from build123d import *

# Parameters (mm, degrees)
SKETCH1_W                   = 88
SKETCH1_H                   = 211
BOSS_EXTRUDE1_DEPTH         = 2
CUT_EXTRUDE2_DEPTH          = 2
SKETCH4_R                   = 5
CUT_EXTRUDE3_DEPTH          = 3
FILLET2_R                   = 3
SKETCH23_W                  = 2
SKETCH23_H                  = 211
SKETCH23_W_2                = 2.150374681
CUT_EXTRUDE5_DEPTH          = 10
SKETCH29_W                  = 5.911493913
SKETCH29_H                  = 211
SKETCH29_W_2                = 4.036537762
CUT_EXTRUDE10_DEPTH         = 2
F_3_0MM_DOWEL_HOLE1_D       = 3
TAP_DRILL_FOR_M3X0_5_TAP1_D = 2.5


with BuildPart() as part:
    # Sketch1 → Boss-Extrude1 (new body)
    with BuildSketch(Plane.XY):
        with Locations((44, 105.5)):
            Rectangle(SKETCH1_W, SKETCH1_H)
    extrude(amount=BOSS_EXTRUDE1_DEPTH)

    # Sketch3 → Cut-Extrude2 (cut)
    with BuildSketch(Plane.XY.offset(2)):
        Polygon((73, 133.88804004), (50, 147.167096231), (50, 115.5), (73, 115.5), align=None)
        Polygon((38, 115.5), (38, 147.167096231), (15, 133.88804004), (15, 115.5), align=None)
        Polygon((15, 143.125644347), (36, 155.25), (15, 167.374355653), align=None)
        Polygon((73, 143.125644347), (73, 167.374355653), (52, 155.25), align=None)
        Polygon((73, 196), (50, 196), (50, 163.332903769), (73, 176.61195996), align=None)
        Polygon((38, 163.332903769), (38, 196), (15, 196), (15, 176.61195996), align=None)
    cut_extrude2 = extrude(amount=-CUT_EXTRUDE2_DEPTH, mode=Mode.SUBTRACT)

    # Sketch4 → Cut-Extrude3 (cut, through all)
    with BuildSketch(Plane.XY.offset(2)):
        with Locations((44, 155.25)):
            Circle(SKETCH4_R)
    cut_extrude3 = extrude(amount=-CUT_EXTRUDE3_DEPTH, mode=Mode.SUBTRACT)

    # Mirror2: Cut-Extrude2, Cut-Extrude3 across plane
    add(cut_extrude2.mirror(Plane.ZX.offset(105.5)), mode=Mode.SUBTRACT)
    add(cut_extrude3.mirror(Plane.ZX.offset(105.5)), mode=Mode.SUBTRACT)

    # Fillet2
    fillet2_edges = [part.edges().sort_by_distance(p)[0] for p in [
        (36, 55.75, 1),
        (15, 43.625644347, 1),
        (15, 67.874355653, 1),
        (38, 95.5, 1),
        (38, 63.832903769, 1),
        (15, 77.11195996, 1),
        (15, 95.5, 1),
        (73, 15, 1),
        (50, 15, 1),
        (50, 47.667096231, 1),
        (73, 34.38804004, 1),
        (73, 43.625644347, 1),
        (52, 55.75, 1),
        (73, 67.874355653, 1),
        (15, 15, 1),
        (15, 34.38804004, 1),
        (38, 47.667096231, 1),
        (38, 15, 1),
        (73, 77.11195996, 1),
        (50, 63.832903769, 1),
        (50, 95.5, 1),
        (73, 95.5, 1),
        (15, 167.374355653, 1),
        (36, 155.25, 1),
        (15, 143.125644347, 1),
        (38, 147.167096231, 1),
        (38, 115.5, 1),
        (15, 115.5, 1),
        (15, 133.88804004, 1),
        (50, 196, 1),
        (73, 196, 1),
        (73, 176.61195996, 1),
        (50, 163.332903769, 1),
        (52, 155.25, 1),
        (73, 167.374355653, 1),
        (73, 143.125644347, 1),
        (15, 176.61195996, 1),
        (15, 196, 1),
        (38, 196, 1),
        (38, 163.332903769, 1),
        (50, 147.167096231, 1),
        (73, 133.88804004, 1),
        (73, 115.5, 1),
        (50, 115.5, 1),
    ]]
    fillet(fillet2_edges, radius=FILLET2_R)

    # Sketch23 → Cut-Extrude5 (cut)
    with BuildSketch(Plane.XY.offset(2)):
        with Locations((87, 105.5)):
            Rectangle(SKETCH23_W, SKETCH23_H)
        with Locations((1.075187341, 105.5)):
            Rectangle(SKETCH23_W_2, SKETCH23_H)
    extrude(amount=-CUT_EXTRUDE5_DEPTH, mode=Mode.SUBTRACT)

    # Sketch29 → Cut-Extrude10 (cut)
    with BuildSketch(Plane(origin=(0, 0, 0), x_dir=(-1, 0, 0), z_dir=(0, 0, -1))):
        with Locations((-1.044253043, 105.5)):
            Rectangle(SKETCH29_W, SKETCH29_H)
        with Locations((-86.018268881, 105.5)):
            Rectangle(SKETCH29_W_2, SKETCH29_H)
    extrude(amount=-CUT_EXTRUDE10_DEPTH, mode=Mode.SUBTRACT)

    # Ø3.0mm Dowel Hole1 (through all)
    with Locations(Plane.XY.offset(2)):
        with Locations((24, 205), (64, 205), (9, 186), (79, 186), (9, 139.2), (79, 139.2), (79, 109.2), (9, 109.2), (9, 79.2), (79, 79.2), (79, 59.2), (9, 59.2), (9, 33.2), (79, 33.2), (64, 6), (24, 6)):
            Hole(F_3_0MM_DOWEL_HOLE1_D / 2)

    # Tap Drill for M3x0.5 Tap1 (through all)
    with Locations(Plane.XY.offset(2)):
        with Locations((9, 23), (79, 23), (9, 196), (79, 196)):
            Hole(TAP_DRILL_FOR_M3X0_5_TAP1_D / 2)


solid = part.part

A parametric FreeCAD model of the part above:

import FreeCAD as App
import Part
import Sketcher
from FreeCAD import Vector
Q = App.Units.Quantity


def edges_at(feature, points):
    """Names of the edges that pass closest to the given points."""
    edges = feature.Shape.Edges
    near = lambda p: min(range(len(edges)), key=lambda i: edges[i].distToShape(Part.Vertex(*p))[0])
    return sorted({f"Edge{near(p) + 1}" for p in points})


def add_polygon(sketch, points):
    """Adds a closed chain of lines whose ends are joined by coincident constraints."""
    first, n = sketch.GeometryCount, len(points)
    for a, b in zip(points, points[1:] + points[:1]):
        sketch.addGeometry(Part.LineSegment(App.Vector(*a, 0), App.Vector(*b, 0)), False)
    for i in range(n):
        sketch.addConstraint(Sketcher.Constraint("Coincident", first + i, 2, first + (i + 1) % n, 1))

doc = App.newDocument("Part")
body = doc.addObject("PartDesign::Body", "Body")

# Sketch on XY plane
sketch1 = body.newObject("Sketcher::SketchObject", "Sketch")
sketch1.AttachmentSupport = (doc.getObject("XY_Plane"), [""])
sketch1.MapMode = "FlatFace"
add_polygon(sketch1, [(0, 211), (0, 0), (88, 0), (88, 211)])  # lines 0-3
sketch1.addConstraint([
    Sketcher.Constraint("Vertical", 0),
    Sketcher.Constraint("Horizontal", 1),
    Sketcher.Constraint("Vertical", 2),
    Sketcher.Constraint("Horizontal", 3),
    Sketcher.Constraint("Coincident", 0, 2, -1, 1),
    Sketcher.Constraint("DistanceX", 1, 1, 1, 2, Q("88 mm")),
    Sketcher.Constraint("DistanceY", 0, 2, 0, 1, Q("211 mm")),
])
pad1 = body.newObject("PartDesign::Pad", "Pad")
pad1.Profile = sketch1
pad1.Length = 2

# Sketch on XY plane
sketch2 = body.newObject("Sketcher::SketchObject", "Sketch001")
sketch2.AttachmentSupport = (doc.getObject("XY_Plane"), [""])
sketch2.MapMode = "FlatFace"
sketch2.AttachmentOffset = App.Placement(Vector(0, 0, 2), App.Rotation())
add_polygon(sketch2, [(73, 134), (50, 147), (50, 116), (73, 116)])  # lines 0-3
add_polygon(sketch2, [(38, 116), (38, 147), (15, 134), (15, 116)])  # lines 4-7
add_polygon(sketch2, [(15, 143), (36, 155), (15, 167)])  # lines 8-10
add_polygon(sketch2, [(73, 143), (73, 167), (52, 155)])  # lines 11-13
add_polygon(sketch2, [(73, 196), (50, 196), (50, 163), (73, 177)])  # lines 14-17
add_polygon(sketch2, [(38, 163), (38, 196), (15, 196), (15, 177)])  # lines 18-21
sketch2.addConstraint([
    Sketcher.Constraint("Vertical", 1),
    Sketcher.Constraint("Horizontal", 2),
    Sketcher.Constraint("Vertical", 3),
    Sketcher.Constraint("Vertical", 4),
    Sketcher.Constraint("Vertical", 6),
    Sketcher.Constraint("Horizontal", 7),
    Sketcher.Constraint("Vertical", 10),
    Sketcher.Constraint("Vertical", 11),
    Sketcher.Constraint("Horizontal", 14),
    Sketcher.Constraint("Vertical", 15),
    Sketcher.Constraint("Vertical", 17),
    Sketcher.Constraint("Vertical", 18),
    Sketcher.Constraint("Horizontal", 19),
    Sketcher.Constraint("Vertical", 20),
    Sketcher.Constraint("Parallel", 5, 8),
    Sketcher.Constraint("Parallel", 0, 9),
    Sketcher.Constraint("Parallel", 8, 12),
    Sketcher.Constraint("Parallel", 9, 13),
    Sketcher.Constraint("Parallel", 12, 16),
    Sketcher.Constraint("Parallel", 13, 21),
    Sketcher.Constraint("Horizontal", 0, 2, 4, 2),
    Sketcher.Constraint("Horizontal", 3, 2, 5, 2),
    Sketcher.Constraint("Horizontal", 2, 2, 6, 2),
    Sketcher.Constraint("Horizontal", 9, 2, 11, 2),
    Sketcher.Constraint("Horizontal", 8, 2, 12, 2),
    Sketcher.Constraint("Horizontal", 10, 2, 13, 2),
    Sketcher.Constraint("Horizontal", 17, 2, 18, 2),
    Sketcher.Constraint("Horizontal", 16, 2, 20, 2),
    Sketcher.Constraint("Horizontal", 15, 2, 21, 2),
    Sketcher.Constraint("Vertical", 6, 2, 9, 2),
    Sketcher.Constraint("Vertical", 3, 2, 11, 2),
    Sketcher.Constraint("Vertical", 1, 2, 14, 2),
    Sketcher.Constraint("Vertical", 13, 2, 16, 2),
    Sketcher.Constraint("Vertical", 7, 2, 18, 2),
    Sketcher.Constraint("DistanceX", 2, 1, 2, 2, Q("23 mm")),
    Sketcher.Constraint("Angle", 0, Q("150 deg")),
    Sketcher.Constraint("DistanceX", -1, 1, 0, 2, Q("50 mm")),
    Sketcher.Constraint("DistanceX", -1, 1, 4, 2, Q("38 mm")),
    Sketcher.Constraint("DistanceX", -1, 1, 8, 2, Q("36 mm")),
    Sketcher.Constraint("DistanceY", -1, 1, 14, 2, Q("196 mm")),
    Sketcher.Constraint("DistanceY", -1, 1, 1, 2, Q("115.5 mm")),
    Sketcher.Constraint("DistanceY", -1, 1, 8, 2, Q("155.25 mm")),
    Sketcher.Constraint("DistanceY", 3, 1, 3, 2, Q("18.38804 mm")),
    Sketcher.Constraint("DistanceY", 17, 1, 17, 2, Q("19.38804 mm")),
])
pocket1 = body.newObject("PartDesign::Pocket", "Pocket")
pocket1.Profile = sketch2
pocket1.Length = 2

# Sketch on XY plane
sketch3 = body.newObject("Sketcher::SketchObject", "Sketch002")
sketch3.AttachmentSupport = (doc.getObject("XY_Plane"), [""])
sketch3.MapMode = "FlatFace"
sketch3.AttachmentOffset = App.Placement(Vector(0, 0, 2), App.Rotation())
sketch3.addGeometry(Part.Circle(Vector(44, 155, 0), Vector(0, 0, 1), 5), False)
sketch3.addConstraint([
    Sketcher.Constraint("Diameter", 0, Q("10 mm")),
    Sketcher.Constraint("DistanceX", -1, 1, 0, 3, Q("44 mm")),
    Sketcher.Constraint("DistanceY", -1, 1, 0, 3, Q("155.25 mm")),
])
pocket2 = body.newObject("PartDesign::Pocket", "Pocket001")
pocket2.Profile = sketch3
pocket2.Type = "ThroughAll"
doc.recompute()

datumplane = body.newObject("PartDesign::Plane", "DatumPlane")
datumplane.AttachmentSupport = (doc.getObject("XZ_Plane"), [""])
datumplane.MapMode = "FlatFace"
datumplane.AttachmentOffset = App.Placement(Vector(0, 0, -105.5), App.Rotation())
mirrored = body.newObject("PartDesign::Mirrored", "Mirrored")
mirrored.Originals = [pocket1, pocket2]
mirrored.MirrorPlane = (datumplane, [""])
body.Tip = mirrored
doc.recompute()

fillet = body.newObject("PartDesign::Fillet", "Fillet")
fillet.Base = (mirrored, edges_at(mirrored, [
    (36, 55.75, 1),
    (15, 43.626, 1),
    (15, 67.874, 1),
    (38, 95.5, 1),
    (38, 63.833, 1),
    (15, 77.112, 1),
    (15, 95.5, 1),
    (73, 15, 1),
    (50, 15, 1),
    (50, 47.667, 1),
    (73, 34.388, 1),
    (73, 43.626, 1),
    (52, 55.75, 1),
    (73, 67.874, 1),
    (15, 15, 1),
    (15, 34.388, 1),
    (38, 47.667, 1),
    (38, 15, 1),
    (73, 77.112, 1),
    (50, 63.833, 1),
    (50, 95.5, 1),
    (73, 95.5, 1),
    (15, 167.374, 1),
    (36, 155.25, 1),
    (15, 143.126, 1),
    (38, 147.167, 1),
    (38, 115.5, 1),
    (15, 115.5, 1),
    (15, 133.888, 1),
    (50, 196, 1),
    (73, 196, 1),
    (73, 176.612, 1),
    (50, 163.333, 1),
    (52, 155.25, 1),
    (73, 167.374, 1),
    (73, 143.126, 1),
    (15, 176.612, 1),
    (15, 196, 1),
    (38, 196, 1),
    (38, 163.333, 1),
    (50, 147.167, 1),
    (73, 133.888, 1),
    (73, 115.5, 1),
    (50, 115.5, 1),
]))
fillet.Radius = 3

# Sketch on XY plane
sketch4 = body.newObject("Sketcher::SketchObject", "Sketch003")
sketch4.AttachmentSupport = (doc.getObject("XY_Plane"), [""])
sketch4.MapMode = "FlatFace"
sketch4.AttachmentOffset = App.Placement(Vector(0, 0, 2), App.Rotation())
add_polygon(sketch4, [(86, 211), (86, 0), (88, 0), (88, 211)])  # lines 0-3
add_polygon(sketch4, [(0, 211), (0, 0), (2.2, 0), (2.2, 211)])  # lines 4-7
sketch4.addConstraint([
    Sketcher.Constraint("Vertical", 0),
    Sketcher.Constraint("Horizontal", 1),
    Sketcher.Constraint("Vertical", 2),
    Sketcher.Constraint("Horizontal", 3),
    Sketcher.Constraint("Vertical", 4),
    Sketcher.Constraint("Horizontal", 5),
    Sketcher.Constraint("Vertical", 6),
    Sketcher.Constraint("Horizontal", 7),
    Sketcher.Constraint("Coincident", 4, 2, -1, 1),
    Sketcher.Constraint("PointOnObject", 0, 2, -1),
    Sketcher.Constraint("Horizontal", 3, 2, 6, 2),
    Sketcher.Constraint("DistanceX", 1, 1, 1, 2, Q("2 mm")),
    Sketcher.Constraint("DistanceY", 0, 2, 0, 1, Q("211 mm")),
    Sketcher.Constraint("DistanceX", -1, 1, 0, 2, Q("86 mm")),
    Sketcher.Constraint("DistanceX", 5, 1, 5, 2, Q("2.150375 mm")),
])
pocket3 = body.newObject("PartDesign::Pocket", "Pocket002")
pocket3.Profile = sketch4
pocket3.Length = 10

# Sketch on XY plane
sketch5 = body.newObject("Sketcher::SketchObject", "Sketch004")
sketch5.AttachmentSupport = (doc.getObject("XY_Plane"), [""])
sketch5.MapMode = "FlatFace"
add_polygon(sketch5, [(4, 211), (4, 0), (-1.9, 0), (-1.9, 211)])  # lines 0-3
add_polygon(sketch5, [(88, 211), (88, 0), (84, 0), (84, 211)])  # lines 4-7
sketch5.addConstraint([
    Sketcher.Constraint("Vertical", 0),
    Sketcher.Constraint("Horizontal", 1),
    Sketcher.Constraint("Vertical", 2),
    Sketcher.Constraint("Horizontal", 3),
    Sketcher.Constraint("Vertical", 4),
    Sketcher.Constraint("Horizontal", 5),
    Sketcher.Constraint("Vertical", 6),
    Sketcher.Constraint("Horizontal", 7),
    Sketcher.Constraint("PointOnObject", 0, 2, -1),
    Sketcher.Constraint("PointOnObject", 4, 2, -1),
    Sketcher.Constraint("Horizontal", 3, 2, 6, 2),
    Sketcher.Constraint("DistanceY", 0, 2, 0, 1, Q("211 mm")),
    Sketcher.Constraint("DistanceX", -1, 1, 0, 2, Q("4 mm")),
    Sketcher.Constraint("DistanceX", -1, 1, 5, 2, Q("84 mm")),
    Sketcher.Constraint("DistanceX", 1, 2, 1, 1, Q("5.911494 mm")),
    Sketcher.Constraint("DistanceX", 5, 2, 5, 1, Q("4.036538 mm")),
])
pocket4 = body.newObject("PartDesign::Pocket", "Pocket003")
pocket4.Profile = sketch5
pocket4.Length = 2
pocket4.Reversed = True

# Sketch on XY plane
sketch6 = body.newObject("Sketcher::SketchObject", "Sketch005")
sketch6.AttachmentSupport = (doc.getObject("XY_Plane"), [""])
sketch6.MapMode = "FlatFace"
sketch6.AttachmentOffset = App.Placement(Vector(0, 0, 2), App.Rotation())
sketch6.addGeometry([
    Part.Circle(Vector(24, 205, 0), Vector(0, 0, 1), 1.5),  # 0
    Part.Circle(Vector(64, 205, 0), Vector(0, 0, 1), 1.5),  # 1
    Part.Circle(Vector(9, 186, 0), Vector(0, 0, 1), 1.5),  # 2
    Part.Circle(Vector(79, 186, 0), Vector(0, 0, 1), 1.5),  # 3
    Part.Circle(Vector(9, 139.2, 0), Vector(0, 0, 1), 1.5),  # 4
    Part.Circle(Vector(79, 139.2, 0), Vector(0, 0, 1), 1.5),  # 5
    Part.Circle(Vector(79, 109.2, 0), Vector(0, 0, 1), 1.5),  # 6
    Part.Circle(Vector(9, 109.2, 0), Vector(0, 0, 1), 1.5),  # 7
    Part.Circle(Vector(9, 79.2, 0), Vector(0, 0, 1), 1.5),  # 8
    Part.Circle(Vector(79, 79.2, 0), Vector(0, 0, 1), 1.5),  # 9
    Part.Circle(Vector(79, 59.2, 0), Vector(0, 0, 1), 1.5),  # 10
    Part.Circle(Vector(9, 59.2, 0), Vector(0, 0, 1), 1.5),  # 11
    Part.Circle(Vector(9, 33.2, 0), Vector(0, 0, 1), 1.5),  # 12
    Part.Circle(Vector(79, 33.2, 0), Vector(0, 0, 1), 1.5),  # 13
    Part.Circle(Vector(64, 6, 0), Vector(0, 0, 1), 1.5),  # 14
    Part.Circle(Vector(24, 6, 0), Vector(0, 0, 1), 1.5),  # 15
], False)
sketch6.addConstraint([
    Sketcher.Constraint("Equal", 0, 1),
    Sketcher.Constraint("Equal", 1, 2),
    Sketcher.Constraint("Equal", 2, 3),
    Sketcher.Constraint("Equal", 3, 4),
    Sketcher.Constraint("Equal", 4, 5),
    Sketcher.Constraint("Equal", 5, 6),
    Sketcher.Constraint("Equal", 6, 7),
    Sketcher.Constraint("Equal", 7, 8),
    Sketcher.Constraint("Equal", 8, 9),
    Sketcher.Constraint("Equal", 9, 10),
    Sketcher.Constraint("Equal", 10, 11),
    Sketcher.Constraint("Equal", 11, 12),
    Sketcher.Constraint("Equal", 12, 13),
    Sketcher.Constraint("Equal", 13, 14),
    Sketcher.Constraint("Equal", 14, 15),
    Sketcher.Constraint("Horizontal", 0, 3, 1, 3),
    Sketcher.Constraint("Horizontal", 2, 3, 3, 3),
    Sketcher.Constraint("Horizontal", 4, 3, 5, 3),
    Sketcher.Constraint("Horizontal", 6, 3, 7, 3),
    Sketcher.Constraint("Horizontal", 8, 3, 9, 3),
    Sketcher.Constraint("Horizontal", 10, 3, 11, 3),
    Sketcher.Constraint("Horizontal", 12, 3, 13, 3),
    Sketcher.Constraint("Horizontal", 14, 3, 15, 3),
    Sketcher.Constraint("Vertical", 2, 3, 4, 3),
    Sketcher.Constraint("Vertical", 3, 3, 5, 3),
    Sketcher.Constraint("Vertical", 5, 3, 6, 3),
    Sketcher.Constraint("Vertical", 4, 3, 7, 3),
    Sketcher.Constraint("Vertical", 7, 3, 8, 3),
    Sketcher.Constraint("Vertical", 6, 3, 9, 3),
    Sketcher.Constraint("Vertical", 9, 3, 10, 3),
    Sketcher.Constraint("Vertical", 8, 3, 11, 3),
    Sketcher.Constraint("Vertical", 11, 3, 12, 3),
    Sketcher.Constraint("Vertical", 10, 3, 13, 3),
    Sketcher.Constraint("Vertical", 1, 3, 14, 3),
    Sketcher.Constraint("Vertical", 0, 3, 15, 3),
    Sketcher.Constraint("Diameter", 0, Q("3 mm")),
    Sketcher.Constraint("DistanceX", -1, 1, 0, 3, Q("24 mm")),
    Sketcher.Constraint("DistanceY", -1, 1, 0, 3, Q("205 mm")),
    Sketcher.Constraint("DistanceX", -1, 1, 1, 3, Q("64 mm")),
    Sketcher.Constraint("DistanceX", -1, 1, 2, 3, Q("9 mm")),
    Sketcher.Constraint("DistanceY", -1, 1, 2, 3, Q("186 mm")),
    Sketcher.Constraint("DistanceX", -1, 1, 3, 3, Q("79 mm")),
    Sketcher.Constraint("DistanceY", -1, 1, 14, 3, Q("6 mm")),
    Sketcher.Constraint("DistanceY", 6, 3, 5, 3, Q("30 mm")),
    Sketcher.Constraint("DistanceY", 8, 3, 7, 3, Q("30 mm")),
    Sketcher.Constraint("DistanceY", 10, 3, 9, 3, Q("20 mm")),
    Sketcher.Constraint("DistanceY", 12, 3, 11, 3, Q("26 mm")),
    Sketcher.Constraint("DistanceY", -1, 1, 4, 3, Q("139.2 mm")),
])
doc.recompute()
hole = body.newObject("PartDesign::Hole", "Hole")
hole.Profile = sketch6
hole.ThreadType = "None"
hole.Diameter = 3
hole.DepthType = "ThroughAll"

# Sketch on XY plane
sketch7 = body.newObject("Sketcher::SketchObject", "Sketch006")
sketch7.AttachmentSupport = (doc.getObject("XY_Plane"), [""])
sketch7.MapMode = "FlatFace"
sketch7.AttachmentOffset = App.Placement(Vector(0, 0, 2), App.Rotation())
sketch7.addGeometry([
    Part.Circle(Vector(9, 23, 0), Vector(0, 0, 1), 1.2),
    Part.Circle(Vector(79, 23, 0), Vector(0, 0, 1), 1.2),
    Part.Circle(Vector(9, 196, 0), Vector(0, 0, 1), 1.2),
    Part.Circle(Vector(79, 196, 0), Vector(0, 0, 1), 1.2),
], False)
sketch7.addConstraint([
    Sketcher.Constraint("Equal", 0, 1),
    Sketcher.Constraint("Equal", 1, 2),
    Sketcher.Constraint("Equal", 2, 3),
    Sketcher.Constraint("Horizontal", 0, 3, 1, 3),
    Sketcher.Constraint("Horizontal", 2, 3, 3, 3),
    Sketcher.Constraint("Vertical", 0, 3, 2, 3),
    Sketcher.Constraint("Vertical", 1, 3, 3, 3),
    Sketcher.Constraint("Diameter", 0, Q("2.5 mm")),
    Sketcher.Constraint("DistanceX", -1, 1, 0, 3, Q("9 mm")),
    Sketcher.Constraint("DistanceY", -1, 1, 0, 3, Q("23 mm")),
    Sketcher.Constraint("DistanceX", -1, 1, 1, 3, Q("79 mm")),
    Sketcher.Constraint("DistanceY", -1, 1, 2, 3, Q("196 mm")),
])
doc.recompute()
hole2 = body.newObject("PartDesign::Hole", "Hole001")
hole2.Profile = sketch7
hole2.ThreadType = "None"
hole2.Diameter = 2.5
hole2.DepthType = "ThroughAll"

doc.recompute()
